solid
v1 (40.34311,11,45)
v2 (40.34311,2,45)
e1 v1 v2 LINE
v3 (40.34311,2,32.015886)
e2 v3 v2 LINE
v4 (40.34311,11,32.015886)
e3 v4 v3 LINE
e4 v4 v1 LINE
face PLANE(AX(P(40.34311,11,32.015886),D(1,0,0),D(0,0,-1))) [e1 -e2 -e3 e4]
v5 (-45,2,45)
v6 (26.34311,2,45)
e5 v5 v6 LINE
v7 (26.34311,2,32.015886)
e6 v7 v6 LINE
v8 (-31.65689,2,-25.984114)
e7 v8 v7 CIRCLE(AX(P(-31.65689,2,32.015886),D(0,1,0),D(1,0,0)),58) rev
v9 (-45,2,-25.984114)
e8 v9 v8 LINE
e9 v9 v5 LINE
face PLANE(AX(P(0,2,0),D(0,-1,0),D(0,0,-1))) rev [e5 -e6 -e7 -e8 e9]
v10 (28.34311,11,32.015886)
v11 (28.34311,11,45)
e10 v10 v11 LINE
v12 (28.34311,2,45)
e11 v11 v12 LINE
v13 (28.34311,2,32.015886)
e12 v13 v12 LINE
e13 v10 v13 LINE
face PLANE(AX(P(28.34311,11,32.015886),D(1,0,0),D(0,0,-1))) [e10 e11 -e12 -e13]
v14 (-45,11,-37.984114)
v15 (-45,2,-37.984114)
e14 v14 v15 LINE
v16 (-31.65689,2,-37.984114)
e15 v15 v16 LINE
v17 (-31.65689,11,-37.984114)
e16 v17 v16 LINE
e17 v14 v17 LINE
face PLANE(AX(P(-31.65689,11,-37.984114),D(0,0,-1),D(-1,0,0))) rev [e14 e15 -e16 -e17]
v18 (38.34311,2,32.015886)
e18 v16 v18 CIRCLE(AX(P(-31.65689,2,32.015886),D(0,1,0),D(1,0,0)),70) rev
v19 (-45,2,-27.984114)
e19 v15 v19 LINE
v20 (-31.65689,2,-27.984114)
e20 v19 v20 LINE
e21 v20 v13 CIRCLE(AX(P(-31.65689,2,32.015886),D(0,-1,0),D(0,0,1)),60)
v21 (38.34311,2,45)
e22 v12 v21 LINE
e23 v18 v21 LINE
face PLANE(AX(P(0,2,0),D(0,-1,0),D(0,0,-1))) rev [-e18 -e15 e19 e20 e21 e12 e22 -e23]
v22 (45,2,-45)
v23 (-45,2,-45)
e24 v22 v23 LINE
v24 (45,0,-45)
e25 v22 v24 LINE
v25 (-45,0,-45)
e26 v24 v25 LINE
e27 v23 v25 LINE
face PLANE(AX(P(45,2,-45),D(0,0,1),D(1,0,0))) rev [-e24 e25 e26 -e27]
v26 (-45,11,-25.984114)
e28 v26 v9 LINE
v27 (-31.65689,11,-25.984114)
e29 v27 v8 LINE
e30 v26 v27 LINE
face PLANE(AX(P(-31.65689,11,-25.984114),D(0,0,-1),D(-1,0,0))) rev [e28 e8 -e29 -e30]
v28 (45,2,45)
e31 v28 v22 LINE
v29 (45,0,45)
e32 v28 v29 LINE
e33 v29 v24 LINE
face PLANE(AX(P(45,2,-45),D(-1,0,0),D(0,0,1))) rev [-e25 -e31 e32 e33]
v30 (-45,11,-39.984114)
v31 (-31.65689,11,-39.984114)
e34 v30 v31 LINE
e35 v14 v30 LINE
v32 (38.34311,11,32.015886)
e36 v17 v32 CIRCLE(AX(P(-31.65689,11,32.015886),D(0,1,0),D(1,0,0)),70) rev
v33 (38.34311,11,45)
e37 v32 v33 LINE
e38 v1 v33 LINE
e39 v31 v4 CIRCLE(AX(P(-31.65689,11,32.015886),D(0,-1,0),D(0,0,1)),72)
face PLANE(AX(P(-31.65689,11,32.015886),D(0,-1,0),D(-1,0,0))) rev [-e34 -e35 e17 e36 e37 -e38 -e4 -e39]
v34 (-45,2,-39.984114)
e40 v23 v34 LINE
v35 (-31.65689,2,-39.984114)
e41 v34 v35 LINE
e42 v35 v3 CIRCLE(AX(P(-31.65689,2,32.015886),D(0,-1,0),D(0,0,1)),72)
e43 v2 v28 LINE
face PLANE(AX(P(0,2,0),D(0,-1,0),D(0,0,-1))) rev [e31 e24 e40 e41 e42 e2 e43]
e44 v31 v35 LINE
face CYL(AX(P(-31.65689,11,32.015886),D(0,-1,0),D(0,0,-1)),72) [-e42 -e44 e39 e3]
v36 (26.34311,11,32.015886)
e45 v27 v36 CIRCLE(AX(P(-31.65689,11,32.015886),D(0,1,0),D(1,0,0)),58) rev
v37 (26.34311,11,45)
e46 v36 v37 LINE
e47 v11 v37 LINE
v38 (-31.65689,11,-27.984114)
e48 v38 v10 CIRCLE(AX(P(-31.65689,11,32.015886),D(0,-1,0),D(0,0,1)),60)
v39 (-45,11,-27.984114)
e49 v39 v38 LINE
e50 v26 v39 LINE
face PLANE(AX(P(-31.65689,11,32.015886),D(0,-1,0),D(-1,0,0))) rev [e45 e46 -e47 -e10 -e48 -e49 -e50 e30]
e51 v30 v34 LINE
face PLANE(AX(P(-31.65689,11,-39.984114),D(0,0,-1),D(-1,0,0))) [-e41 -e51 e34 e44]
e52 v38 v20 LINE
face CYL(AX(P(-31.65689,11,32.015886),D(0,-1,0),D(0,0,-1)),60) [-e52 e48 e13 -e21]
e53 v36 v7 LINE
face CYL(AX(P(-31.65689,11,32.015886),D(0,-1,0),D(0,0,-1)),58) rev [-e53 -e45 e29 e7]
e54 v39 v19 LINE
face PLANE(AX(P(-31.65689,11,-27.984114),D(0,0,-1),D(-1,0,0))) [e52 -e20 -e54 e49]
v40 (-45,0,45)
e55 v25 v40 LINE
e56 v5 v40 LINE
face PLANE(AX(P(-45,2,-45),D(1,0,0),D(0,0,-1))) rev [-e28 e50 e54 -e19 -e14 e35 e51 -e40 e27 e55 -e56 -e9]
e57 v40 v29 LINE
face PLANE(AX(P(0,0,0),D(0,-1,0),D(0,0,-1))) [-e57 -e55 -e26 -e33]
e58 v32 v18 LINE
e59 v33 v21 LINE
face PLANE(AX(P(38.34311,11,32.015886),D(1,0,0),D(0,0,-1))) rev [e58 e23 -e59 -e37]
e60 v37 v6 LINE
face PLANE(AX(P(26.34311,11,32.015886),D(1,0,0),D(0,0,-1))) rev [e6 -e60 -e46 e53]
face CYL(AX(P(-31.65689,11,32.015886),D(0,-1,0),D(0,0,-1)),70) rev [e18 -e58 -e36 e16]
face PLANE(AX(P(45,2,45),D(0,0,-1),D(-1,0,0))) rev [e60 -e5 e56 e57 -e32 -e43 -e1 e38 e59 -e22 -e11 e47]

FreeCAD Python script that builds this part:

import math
import FreeCAD as App
import Part
import Sketcher
Q = App.Units.Quantity


def add_polygon(sketch, points):
    """Adds a closed chain of lines whose ends are joined by coincident constraints."""
    first, n = sketch.GeometryCount, len(points)
    for a, b in zip(points, points[1:] + points[:1]):
        sketch.addGeometry(Part.LineSegment(App.Vector(*a, 0), App.Vector(*b, 0)), False)
    for i in range(n):
        sketch.addConstraint(Sketcher.Constraint("Coincident", first + i, 2, first + (i + 1) % n, 1))

doc = App.newDocument("Part")
body = doc.addObject("PartDesign::Body", "Body")

# Sketch on XZ plane
sketch1 = body.newObject("Sketcher::SketchObject", "Sketch")
sketch1.AttachmentSupport = (doc.getObject("XZ_Plane"), [""])
sketch1.MapMode = "FlatFace"
add_polygon(sketch1, [(-45, -45), (-45, 45), (45, 45), (45, -45)])  # lines 0-3
sketch1.addConstraint(Sketcher.Constraint("Vertical", 0))
sketch1.addConstraint(Sketcher.Constraint("Horizontal", 1))
sketch1.addConstraint(Sketcher.Constraint("Vertical", 2))
sketch1.addConstraint(Sketcher.Constraint("Horizontal", 3))
sketch1.addConstraint(Sketcher.Constraint("Symmetric", 0, 2, 2, 2, -1, 1))
sketch1.addConstraint(Sketcher.Constraint("Equal", 3, 0))
sketch1.addConstraint(Sketcher.Constraint("DistanceX", 1, 1, 1, 2, Q("90 mm")))
pad1 = body.newObject("PartDesign::Pad", "Pad")
pad1.Profile = sketch1
pad1.Length = 2
pad1.Reversed = True

# Sketch on XZ plane
sketch2 = body.newObject("Sketcher::SketchObject", "Sketch001")
sketch2.AttachmentSupport = (doc.getObject("XZ_Plane"), [""])
sketch2.MapMode = "FlatFace"
sketch2.AttachmentOffset = App.Placement(App.Vector(0, 0, -2), App.Rotation())
sketch2.addGeometry(Part.LineSegment(App.Vector(40.3, 45, 0), App.Vector(40.3, 32, 0)), False)
sketch2.addGeometry(Part.ArcOfCircle(Part.Circle(App.Vector(-31.7, 32, 0), App.Vector(0, 0, 1), 72), math.radians(-90), math.radians(0)), False)
sketch2.addGeometry(Part.LineSegment(App.Vector(-31.7, -40, 0), App.Vector(-45, -40, 0)), False)
sketch2.addGeometry(Part.LineSegment(App.Vector(-45, -40, 0), App.Vector(-45, -38, 0)), False)
sketch2.addGeometry(Part.LineSegment(App.Vector(-45, -38, 0), App.Vector(-31.7, -38, 0)), False)
sketch2.addGeometry(Part.ArcOfCircle(Part.Circle(App.Vector(-31.7, 32, 0), App.Vector(0, 0, 1), 70), math.radians(-90), math.radians(0)), False)
sketch2.addGeometry(Part.LineSegment(App.Vector(38.3, 32, 0), App.Vector(38.3, 45, 0)), False)
sketch2.addGeometry(Part.LineSegment(App.Vector(38.3, 45, 0), App.Vector(40.3, 45, 0)), False)
sketch2.addGeometry(Part.LineSegment(App.Vector(28.3, 45, 0), App.Vector(28.3, 32, 0)), False)
sketch2.addGeometry(Part.ArcOfCircle(Part.Circle(App.Vector(-31.7, 32, 0), App.Vector(0, 0, 1), 60), math.radians(-90), math.radians(0)), False)
sketch2.addGeometry(Part.LineSegment(App.Vector(-31.7, -28, 0), App.Vector(-45, -28, 0)), False)
sketch2.addGeometry(Part.LineSegment(App.Vector(-45, -28, 0), App.Vector(-45, -26, 0)), False)
sketch2.addGeometry(Part.LineSegment(App.Vector(-45, -26, 0), App.Vector(-31.7, -26, 0)), False)
sketch2.addGeometry(Part.ArcOfCircle(Part.Circle(App.Vector(-31.7, 32, 0), App.Vector(0, 0, 1), 58), math.radians(-90), math.radians(0)), False)
sketch2.addGeometry(Part.LineSegment(App.Vector(26.3, 32, 0), App.Vector(26.3, 45, 0)), False)
sketch2.addGeometry(Part.LineSegment(App.Vector(26.3, 45, 0), App.Vector(28.3, 45, 0)), False)
sketch2.addConstraint(Sketcher.Constraint("Tangent", 0, 2, 1, 2))
sketch2.addConstraint(Sketcher.Constraint("Tangent", 1, 1, 2, 1))
sketch2.addConstraint(Sketcher.Constraint("Coincident", 2, 2, 3, 1))
sketch2.addConstraint(Sketcher.Constraint("Coincident", 3, 2, 4, 1))
sketch2.addConstraint(Sketcher.Constraint("Tangent", 4, 2, 5, 1))
sketch2.addConstraint(Sketcher.Constraint("Tangent", 5, 2, 6, 1))
sketch2.addConstraint(Sketcher.Constraint("Coincident", 6, 2, 7, 1))
sketch2.addConstraint(Sketcher.Constraint("Coincident", 7, 2, 0, 1))
sketch2.addConstraint(Sketcher.Constraint("Tangent", 8, 2, 9, 2))
sketch2.addConstraint(Sketcher.Constraint("Tangent", 9, 1, 10, 1))
sketch2.addConstraint(Sketcher.Constraint("Coincident", 10, 2, 11, 1))
sketch2.addConstraint(Sketcher.Constraint("Coincident", 11, 2, 12, 1))
sketch2.addConstraint(Sketcher.Constraint("Tangent", 12, 2, 13, 1))
sketch2.addConstraint(Sketcher.Constraint("Tangent", 13, 2, 14, 1))
sketch2.addConstraint(Sketcher.Constraint("Coincident", 14, 2, 15, 1))
sketch2.addConstraint(Sketcher.Constraint("Coincident", 15, 2, 8, 1))
sketch2.addConstraint(Sketcher.Constraint("Vertical", 0))
sketch2.addConstraint(Sketcher.Constraint("Horizontal", 2))
sketch2.addConstraint(Sketcher.Constraint("Vertical", 3))
sketch2.addConstraint(Sketcher.Constraint("Horizontal", 4))
sketch2.addConstraint(Sketcher.Constraint("Vertical", 6))
sketch2.addConstraint(Sketcher.Constraint("Horizontal", 7))
sketch2.addConstraint(Sketcher.Constraint("Vertical", 8))
sketch2.addConstraint(Sketcher.Constraint("Horizontal", 10))
sketch2.addConstraint(Sketcher.Constraint("Vertical", 11))
sketch2.addConstraint(Sketcher.Constraint("Horizontal", 12))
sketch2.addConstraint(Sketcher.Constraint("Vertical", 14))
sketch2.addConstraint(Sketcher.Constraint("Horizontal", 15))
sketch2.addConstraint(Sketcher.Constraint("Coincident", 5, 3, 1, 3))
sketch2.addConstraint(Sketcher.Constraint("Coincident", 9, 3, 1, 3))
sketch2.addConstraint(Sketcher.Constraint("Coincident", 13, 3, 1, 3))
sketch2.addConstraint(Sketcher.Constraint("Horizontal", 7, 2, 14, 2))
sketch2.addConstraint(Sketcher.Constraint("Vertical", 3, 2, 10, 2))
sketch2.addConstraint(Sketcher.Constraint("Equal", 7, 15))
sketch2.addConstraint(Sketcher.Constraint("Radius", 1, Q("72 mm")))
sketch2.addConstraint(Sketcher.Constraint("Radius", 5, Q("70 mm")))
sketch2.addConstraint(Sketcher.Constraint("Radius", 9, Q("60 mm")))
sketch2.addConstraint(Sketcher.Constraint("DistanceX", 2, 2, -1, 1, Q("45 mm")))
sketch2.addConstraint(Sketcher.Constraint("DistanceY", -1, 1, 6, 2, Q("45 mm")))
sketch2.addConstraint(Sketcher.Constraint("DistanceX", 2, 2, 2, 1, Q("13.34311 mm")))
sketch2.addConstraint(Sketcher.Constraint("DistanceY", 0, 2, 0, 1, Q("12.984114 mm")))
pad2 = body.newObject("PartDesign::Pad", "Pad001")
pad2.Profile = sketch2
pad2.Length = 9
pad2.Reversed = True

doc.recompute()
